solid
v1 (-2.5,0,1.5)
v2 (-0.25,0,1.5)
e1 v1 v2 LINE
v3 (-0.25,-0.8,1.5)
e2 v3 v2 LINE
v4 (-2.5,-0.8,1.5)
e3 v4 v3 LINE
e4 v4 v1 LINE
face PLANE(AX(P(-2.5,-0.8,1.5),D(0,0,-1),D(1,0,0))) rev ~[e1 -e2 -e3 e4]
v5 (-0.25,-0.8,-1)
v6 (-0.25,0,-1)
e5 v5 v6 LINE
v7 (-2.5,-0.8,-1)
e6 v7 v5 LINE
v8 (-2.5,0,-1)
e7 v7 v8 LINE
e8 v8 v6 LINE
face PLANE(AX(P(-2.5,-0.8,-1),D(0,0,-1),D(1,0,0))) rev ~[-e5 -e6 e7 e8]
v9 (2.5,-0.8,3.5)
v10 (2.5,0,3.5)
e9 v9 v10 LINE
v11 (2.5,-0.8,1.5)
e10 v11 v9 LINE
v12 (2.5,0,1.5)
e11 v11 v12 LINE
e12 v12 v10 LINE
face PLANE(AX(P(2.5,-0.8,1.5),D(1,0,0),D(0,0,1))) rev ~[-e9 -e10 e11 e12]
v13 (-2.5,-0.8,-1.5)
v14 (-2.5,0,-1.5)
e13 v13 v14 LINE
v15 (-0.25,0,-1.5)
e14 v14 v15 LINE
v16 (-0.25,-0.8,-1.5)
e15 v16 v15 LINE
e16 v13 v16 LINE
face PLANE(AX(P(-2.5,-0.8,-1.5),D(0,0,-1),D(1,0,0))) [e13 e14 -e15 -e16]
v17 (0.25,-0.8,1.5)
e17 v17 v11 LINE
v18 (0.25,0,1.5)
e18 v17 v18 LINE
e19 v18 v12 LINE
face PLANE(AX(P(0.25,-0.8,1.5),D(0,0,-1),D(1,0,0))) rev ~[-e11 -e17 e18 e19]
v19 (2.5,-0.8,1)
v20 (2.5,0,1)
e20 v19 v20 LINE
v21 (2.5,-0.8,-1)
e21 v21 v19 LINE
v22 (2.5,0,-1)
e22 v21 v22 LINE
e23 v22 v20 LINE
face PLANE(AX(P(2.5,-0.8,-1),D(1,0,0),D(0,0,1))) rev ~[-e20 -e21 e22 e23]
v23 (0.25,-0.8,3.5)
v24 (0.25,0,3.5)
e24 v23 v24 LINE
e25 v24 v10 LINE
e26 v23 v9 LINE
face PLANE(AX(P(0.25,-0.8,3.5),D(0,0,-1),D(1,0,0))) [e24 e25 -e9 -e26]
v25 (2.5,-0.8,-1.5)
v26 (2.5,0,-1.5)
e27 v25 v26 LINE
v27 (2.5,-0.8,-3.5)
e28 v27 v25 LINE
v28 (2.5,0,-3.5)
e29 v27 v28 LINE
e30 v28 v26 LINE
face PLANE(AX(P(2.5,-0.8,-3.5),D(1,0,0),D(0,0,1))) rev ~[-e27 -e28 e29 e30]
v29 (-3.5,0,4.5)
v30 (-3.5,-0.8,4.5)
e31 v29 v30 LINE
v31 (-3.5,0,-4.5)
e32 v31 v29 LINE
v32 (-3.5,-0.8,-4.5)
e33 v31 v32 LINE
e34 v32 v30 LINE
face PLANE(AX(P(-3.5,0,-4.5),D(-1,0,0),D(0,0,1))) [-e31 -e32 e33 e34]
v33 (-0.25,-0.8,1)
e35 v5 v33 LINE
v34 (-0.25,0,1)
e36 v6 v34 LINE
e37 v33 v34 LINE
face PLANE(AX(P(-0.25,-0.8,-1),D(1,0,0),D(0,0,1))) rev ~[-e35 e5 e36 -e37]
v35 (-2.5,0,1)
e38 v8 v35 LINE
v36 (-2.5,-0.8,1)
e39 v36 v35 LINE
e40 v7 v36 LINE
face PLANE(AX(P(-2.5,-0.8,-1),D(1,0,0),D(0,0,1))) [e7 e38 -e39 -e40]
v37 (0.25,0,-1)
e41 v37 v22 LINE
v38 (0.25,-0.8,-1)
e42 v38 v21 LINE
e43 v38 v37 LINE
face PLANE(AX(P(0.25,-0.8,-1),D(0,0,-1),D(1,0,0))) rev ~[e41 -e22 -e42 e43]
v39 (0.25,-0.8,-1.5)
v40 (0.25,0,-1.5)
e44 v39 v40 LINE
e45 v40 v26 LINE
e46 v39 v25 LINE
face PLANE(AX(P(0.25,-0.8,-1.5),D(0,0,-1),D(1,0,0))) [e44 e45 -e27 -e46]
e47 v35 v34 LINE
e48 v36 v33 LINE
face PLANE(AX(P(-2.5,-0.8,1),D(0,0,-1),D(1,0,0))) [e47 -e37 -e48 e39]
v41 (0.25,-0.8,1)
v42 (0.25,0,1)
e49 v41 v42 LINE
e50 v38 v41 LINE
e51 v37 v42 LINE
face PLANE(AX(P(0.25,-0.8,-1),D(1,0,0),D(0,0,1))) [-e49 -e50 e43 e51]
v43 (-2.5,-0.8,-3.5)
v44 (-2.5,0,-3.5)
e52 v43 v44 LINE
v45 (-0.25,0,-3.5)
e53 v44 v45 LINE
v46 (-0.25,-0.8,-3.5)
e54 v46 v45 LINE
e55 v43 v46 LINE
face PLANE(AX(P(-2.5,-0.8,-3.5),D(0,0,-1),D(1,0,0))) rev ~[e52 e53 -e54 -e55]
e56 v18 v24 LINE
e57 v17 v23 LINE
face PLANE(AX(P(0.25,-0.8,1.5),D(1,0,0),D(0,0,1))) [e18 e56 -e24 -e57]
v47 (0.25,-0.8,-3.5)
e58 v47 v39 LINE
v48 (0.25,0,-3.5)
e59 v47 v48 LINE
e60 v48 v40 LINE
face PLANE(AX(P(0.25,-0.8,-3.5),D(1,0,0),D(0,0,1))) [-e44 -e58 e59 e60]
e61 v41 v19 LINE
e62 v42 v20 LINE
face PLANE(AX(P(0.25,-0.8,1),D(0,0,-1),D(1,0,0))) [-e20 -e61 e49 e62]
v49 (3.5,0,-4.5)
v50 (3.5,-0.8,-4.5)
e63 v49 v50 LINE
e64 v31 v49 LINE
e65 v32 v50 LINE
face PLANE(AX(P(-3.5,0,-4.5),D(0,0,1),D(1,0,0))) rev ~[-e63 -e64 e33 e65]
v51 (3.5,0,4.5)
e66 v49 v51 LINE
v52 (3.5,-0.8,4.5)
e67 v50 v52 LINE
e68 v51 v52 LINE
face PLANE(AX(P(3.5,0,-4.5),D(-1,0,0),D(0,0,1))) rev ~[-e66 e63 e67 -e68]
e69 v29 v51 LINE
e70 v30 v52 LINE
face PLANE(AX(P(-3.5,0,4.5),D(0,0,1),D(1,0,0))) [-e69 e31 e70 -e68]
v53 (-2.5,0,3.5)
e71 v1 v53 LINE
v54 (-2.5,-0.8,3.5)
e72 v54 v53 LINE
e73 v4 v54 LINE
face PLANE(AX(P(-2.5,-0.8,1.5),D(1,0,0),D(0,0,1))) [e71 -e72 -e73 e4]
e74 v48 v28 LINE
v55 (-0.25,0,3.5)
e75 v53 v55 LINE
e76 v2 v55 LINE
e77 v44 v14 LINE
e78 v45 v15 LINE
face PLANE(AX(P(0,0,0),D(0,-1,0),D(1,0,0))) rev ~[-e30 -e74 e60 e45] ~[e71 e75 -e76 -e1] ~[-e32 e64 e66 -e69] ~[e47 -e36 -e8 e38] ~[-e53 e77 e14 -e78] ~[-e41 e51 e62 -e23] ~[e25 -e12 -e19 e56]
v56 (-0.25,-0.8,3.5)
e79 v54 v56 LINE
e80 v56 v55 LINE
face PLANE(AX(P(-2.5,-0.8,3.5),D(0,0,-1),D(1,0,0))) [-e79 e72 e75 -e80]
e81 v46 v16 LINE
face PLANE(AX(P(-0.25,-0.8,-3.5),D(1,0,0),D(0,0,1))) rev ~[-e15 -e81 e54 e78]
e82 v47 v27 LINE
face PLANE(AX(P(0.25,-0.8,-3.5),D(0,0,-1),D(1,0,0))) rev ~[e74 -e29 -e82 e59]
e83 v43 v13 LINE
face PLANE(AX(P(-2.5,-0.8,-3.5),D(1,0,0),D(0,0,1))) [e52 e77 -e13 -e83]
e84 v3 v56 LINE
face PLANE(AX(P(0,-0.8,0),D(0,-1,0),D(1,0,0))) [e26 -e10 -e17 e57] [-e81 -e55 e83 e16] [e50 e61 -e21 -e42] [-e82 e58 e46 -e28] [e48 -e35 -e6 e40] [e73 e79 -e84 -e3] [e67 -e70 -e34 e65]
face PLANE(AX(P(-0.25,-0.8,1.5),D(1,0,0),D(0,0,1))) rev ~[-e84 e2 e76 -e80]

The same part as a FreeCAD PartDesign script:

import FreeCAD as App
import Part
import Sketcher
Q = App.Units.Quantity

doc = App.newDocument("Part")
body = doc.addObject("PartDesign::Body", "Body")

# Sketch on XZ plane
sketch1 = body.newObject("Sketcher::SketchObject", "Sketch")
sketch1.AttachmentSupport = (doc.getObject("XZ_Plane"), [""])
sketch1.MapMode = "FlatFace"
sketch1.addGeometry([
    Part.LineSegment(App.Vector(-4, 4, 0), App.Vector(-4, -4, 0)),
    Part.LineSegment(App.Vector(-4, -4, 0), App.Vector(4, -4, 0)),
    Part.LineSegment(App.Vector(4, -4, 0), App.Vector(4, 4, 0)),
    Part.LineSegment(App.Vector(4, 4, 0), App.Vector(-4, 4, 0)),
], False)
sketch1.addConstraint([
    Sketcher.Constraint("Coincident", 0, 2, 1, 1),
    Sketcher.Constraint("Coincident", 1, 2, 2, 1),
    Sketcher.Constraint("Coincident", 2, 2, 3, 1),
    Sketcher.Constraint("Coincident", 3, 2, 0, 1),
    Sketcher.Constraint("Vertical", 0),
    Sketcher.Constraint("Horizontal", 1),
    Sketcher.Constraint("Vertical", 2),
    Sketcher.Constraint("Horizontal", 3),
    Sketcher.Constraint("Symmetric", 0, 2, 2, 2, -1, 1),
    Sketcher.Constraint("DistanceX", 1, 1, 1, 2, Q("7 mm")),
    Sketcher.Constraint("DistanceY", 0, 2, 0, 1, Q("9 mm")),
])
pad1 = body.newObject("PartDesign::Pad", "Pad")
pad1.Profile = sketch1
pad1.Length = 0.8

# Sketch on XZ plane
sketch2 = body.newObject("Sketcher::SketchObject", "Sketch001")
sketch2.AttachmentSupport = (doc.getObject("XZ_Plane"), [""])
sketch2.MapMode = "FlatFace"
sketch2.AttachmentOffset = App.Placement(App.Vector(0, 0, 0.8), App.Rotation())
sketch2.addGeometry([
    Part.LineSegment(App.Vector(-2.5, 3.5, 0), App.Vector(-2.5, 1.5, 0)),  # 0
    Part.LineSegment(App.Vector(-2.5, 1.5, 0), App.Vector(-0.2, 1.5, 0)),  # 1
    Part.LineSegment(App.Vector(-0.2, 1.5, 0), App.Vector(-0.2, 3.5, 0)),  # 2
    Part.LineSegment(App.Vector(-0.2, 3.5, 0), App.Vector(-2.5, 3.5, 0)),  # 3
    Part.LineSegment(App.Vector(-2.5, 1, 0), App.Vector(-2.5, -1, 0)),  # 4
    Part.LineSegment(App.Vector(-2.5, -1, 0), App.Vector(-0.2, -1, 0)),  # 5
    Part.LineSegment(App.Vector(-0.2, -1, 0), App.Vector(-0.2, 1, 0)),  # 6
    Part.LineSegment(App.Vector(-0.2, 1, 0), App.Vector(-2.5, 1, 0)),  # 7
    Part.LineSegment(App.Vector(-2.5, -1.5, 0), App.Vector(-2.5, -3.5, 0)),  # 8
    Part.LineSegment(App.Vector(-2.5, -3.5, 0), App.Vector(-0.2, -3.5, 0)),  # 9
    Part.LineSegment(App.Vector(-0.2, -3.5, 0), App.Vector(-0.2, -1.5, 0)),  # 10
    Part.LineSegment(App.Vector(-0.2, -1.5, 0), App.Vector(-2.5, -1.5, 0)),  # 11
    Part.LineSegment(App.Vector(0.2, 3.5, 0), App.Vector(0.2, 1.5, 0)),  # 12
    Part.LineSegment(App.Vector(0.2, 1.5, 0), App.Vector(2.5, 1.5, 0)),  # 13
    Part.LineSegment(App.Vector(2.5, 1.5, 0), App.Vector(2.5, 3.5, 0)),  # 14
    Part.LineSegment(App.Vector(2.5, 3.5, 0), App.Vector(0.2, 3.5, 0)),  # 15
    Part.LineSegment(App.Vector(0.2, 1, 0), App.Vector(0.2, -1, 0)),  # 16
    Part.LineSegment(App.Vector(0.2, -1, 0), App.Vector(2.5, -1, 0)),  # 17
    Part.LineSegment(App.Vector(2.5, -1, 0), App.Vector(2.5, 1, 0)),  # 18
    Part.LineSegment(App.Vector(2.5, 1, 0), App.Vector(0.2, 1, 0)),  # 19
    Part.LineSegment(App.Vector(0.2, -1.5, 0), App.Vector(0.2, -3.5, 0)),  # 20
    Part.LineSegment(App.Vector(0.2, -3.5, 0), App.Vector(2.5, -3.5, 0)),  # 21
    Part.LineSegment(App.Vector(2.5, -3.5, 0), App.Vector(2.5, -1.5, 0)),  # 22
    Part.LineSegment(App.Vector(2.5, -1.5, 0), App.Vector(0.2, -1.5, 0)),  # 23
], False)
sketch2.addConstraint([
    Sketcher.Constraint("Coincident", 0, 2, 1, 1),
    Sketcher.Constraint("Coincident", 1, 2, 2, 1),
    Sketcher.Constraint("Coincident", 2, 2, 3, 1),
    Sketcher.Constraint("Coincident", 3, 2, 0, 1),
    Sketcher.Constraint("Coincident", 4, 2, 5, 1),
    Sketcher.Constraint("Coincident", 5, 2, 6, 1),
    Sketcher.Constraint("Coincident", 6, 2, 7, 1),
    Sketcher.Constraint("Coincident", 7, 2, 4, 1),
    Sketcher.Constraint("Coincident", 8, 2, 9, 1),
    Sketcher.Constraint("Coincident", 9, 2, 10, 1),
    Sketcher.Constraint("Coincident", 10, 2, 11, 1),
    Sketcher.Constraint("Coincident", 11, 2, 8, 1),
    Sketcher.Constraint("Coincident", 12, 2, 13, 1),
    Sketcher.Constraint("Coincident", 13, 2, 14, 1),
    Sketcher.Constraint("Coincident", 14, 2, 15, 1),
    Sketcher.Constraint("Coincident", 15, 2, 12, 1),
    Sketcher.Constraint("Coincident", 16, 2, 17, 1),
    Sketcher.Constraint("Coincident", 17, 2, 18, 1),
    Sketcher.Constraint("Coincident", 18, 2, 19, 1),
    Sketcher.Constraint("Coincident", 19, 2, 16, 1),
    Sketcher.Constraint("Coincident", 20, 2, 21, 1),
    Sketcher.Constraint("Coincident", 21, 2, 22, 1),
    Sketcher.Constraint("Coincident", 22, 2, 23, 1),
    Sketcher.Constraint("Coincident", 23, 2, 20, 1),
    Sketcher.Constraint("Vertical", 0),
    Sketcher.Constraint("Horizontal", 1),
    Sketcher.Constraint("Vertical", 2),
    Sketcher.Constraint("Horizontal", 3),
    Sketcher.Constraint("Vertical", 4),
    Sketcher.Constraint("Horizontal", 5),
    Sketcher.Constraint("Vertical", 6),
    Sketcher.Constraint("Horizontal", 7),
    Sketcher.Constraint("Vertical", 8),
    Sketcher.Constraint("Horizontal", 9),
    Sketcher.Constraint("Vertical", 10),
    Sketcher.Constraint("Horizontal", 11),
    Sketcher.Constraint("Vertical", 12),
    Sketcher.Constraint("Horizontal", 13),
    Sketcher.Constraint("Vertical", 14),
    Sketcher.Constraint("Horizontal", 15),
    Sketcher.Constraint("Vertical", 16),
    Sketcher.Constraint("Horizontal", 17),
    Sketcher.Constraint("Vertical", 18),
    Sketcher.Constraint("Horizontal", 19),
    Sketcher.Constraint("Vertical", 20),
    Sketcher.Constraint("Horizontal", 21),
    Sketcher.Constraint("Vertical", 22),
    Sketcher.Constraint("Horizontal", 23),
    Sketcher.Constraint("Symmetric", 10, 2, 12, 2, -1, 1),
    Sketcher.Constraint("Symmetric", 8, 2, 14, 2, -1, 1),
    Sketcher.Constraint("Symmetric", 6, 2, 16, 2, -1, 1),
    Sketcher.Constraint("Symmetric", 4, 2, 18, 2, -1, 1),
    Sketcher.Constraint("Symmetric", 2, 2, 20, 2, -1, 1),
    Sketcher.Constraint("Symmetric", 0, 2, 22, 2, -1, 1),
    Sketcher.Constraint("Symmetric", 1, 2, 12, 2, -2),
    Sketcher.Constraint("Symmetric", 3, 2, 14, 2, -2),
    Sketcher.Constraint("Horizontal", 5, 2, 16, 2),
    Sketcher.Constraint("Vertical", 3, 2, 4, 2),
    Sketcher.Constraint("Vertical", 2, 2, 5, 2),
    Sketcher.Constraint("Equal", 2, 4),
    Sketcher.Constraint("DistanceY", 0, 2, 0, 1, Q("2 mm")),
    Sketcher.Constraint("DistanceY", 8, 2, 0, 2, Q("5 mm")),
    Sketcher.Constraint("DistanceX", 1, 1, 1, 2, Q("2.25 mm")),
    Sketcher.Constraint("DistanceX", 0, 2, -1, 1, Q("2.5 mm")),
])
pocket1 = body.newObject("PartDesign::Pocket", "Pocket")
pocket1.Profile = sketch2
pocket1.Length = 5

doc.recompute()
